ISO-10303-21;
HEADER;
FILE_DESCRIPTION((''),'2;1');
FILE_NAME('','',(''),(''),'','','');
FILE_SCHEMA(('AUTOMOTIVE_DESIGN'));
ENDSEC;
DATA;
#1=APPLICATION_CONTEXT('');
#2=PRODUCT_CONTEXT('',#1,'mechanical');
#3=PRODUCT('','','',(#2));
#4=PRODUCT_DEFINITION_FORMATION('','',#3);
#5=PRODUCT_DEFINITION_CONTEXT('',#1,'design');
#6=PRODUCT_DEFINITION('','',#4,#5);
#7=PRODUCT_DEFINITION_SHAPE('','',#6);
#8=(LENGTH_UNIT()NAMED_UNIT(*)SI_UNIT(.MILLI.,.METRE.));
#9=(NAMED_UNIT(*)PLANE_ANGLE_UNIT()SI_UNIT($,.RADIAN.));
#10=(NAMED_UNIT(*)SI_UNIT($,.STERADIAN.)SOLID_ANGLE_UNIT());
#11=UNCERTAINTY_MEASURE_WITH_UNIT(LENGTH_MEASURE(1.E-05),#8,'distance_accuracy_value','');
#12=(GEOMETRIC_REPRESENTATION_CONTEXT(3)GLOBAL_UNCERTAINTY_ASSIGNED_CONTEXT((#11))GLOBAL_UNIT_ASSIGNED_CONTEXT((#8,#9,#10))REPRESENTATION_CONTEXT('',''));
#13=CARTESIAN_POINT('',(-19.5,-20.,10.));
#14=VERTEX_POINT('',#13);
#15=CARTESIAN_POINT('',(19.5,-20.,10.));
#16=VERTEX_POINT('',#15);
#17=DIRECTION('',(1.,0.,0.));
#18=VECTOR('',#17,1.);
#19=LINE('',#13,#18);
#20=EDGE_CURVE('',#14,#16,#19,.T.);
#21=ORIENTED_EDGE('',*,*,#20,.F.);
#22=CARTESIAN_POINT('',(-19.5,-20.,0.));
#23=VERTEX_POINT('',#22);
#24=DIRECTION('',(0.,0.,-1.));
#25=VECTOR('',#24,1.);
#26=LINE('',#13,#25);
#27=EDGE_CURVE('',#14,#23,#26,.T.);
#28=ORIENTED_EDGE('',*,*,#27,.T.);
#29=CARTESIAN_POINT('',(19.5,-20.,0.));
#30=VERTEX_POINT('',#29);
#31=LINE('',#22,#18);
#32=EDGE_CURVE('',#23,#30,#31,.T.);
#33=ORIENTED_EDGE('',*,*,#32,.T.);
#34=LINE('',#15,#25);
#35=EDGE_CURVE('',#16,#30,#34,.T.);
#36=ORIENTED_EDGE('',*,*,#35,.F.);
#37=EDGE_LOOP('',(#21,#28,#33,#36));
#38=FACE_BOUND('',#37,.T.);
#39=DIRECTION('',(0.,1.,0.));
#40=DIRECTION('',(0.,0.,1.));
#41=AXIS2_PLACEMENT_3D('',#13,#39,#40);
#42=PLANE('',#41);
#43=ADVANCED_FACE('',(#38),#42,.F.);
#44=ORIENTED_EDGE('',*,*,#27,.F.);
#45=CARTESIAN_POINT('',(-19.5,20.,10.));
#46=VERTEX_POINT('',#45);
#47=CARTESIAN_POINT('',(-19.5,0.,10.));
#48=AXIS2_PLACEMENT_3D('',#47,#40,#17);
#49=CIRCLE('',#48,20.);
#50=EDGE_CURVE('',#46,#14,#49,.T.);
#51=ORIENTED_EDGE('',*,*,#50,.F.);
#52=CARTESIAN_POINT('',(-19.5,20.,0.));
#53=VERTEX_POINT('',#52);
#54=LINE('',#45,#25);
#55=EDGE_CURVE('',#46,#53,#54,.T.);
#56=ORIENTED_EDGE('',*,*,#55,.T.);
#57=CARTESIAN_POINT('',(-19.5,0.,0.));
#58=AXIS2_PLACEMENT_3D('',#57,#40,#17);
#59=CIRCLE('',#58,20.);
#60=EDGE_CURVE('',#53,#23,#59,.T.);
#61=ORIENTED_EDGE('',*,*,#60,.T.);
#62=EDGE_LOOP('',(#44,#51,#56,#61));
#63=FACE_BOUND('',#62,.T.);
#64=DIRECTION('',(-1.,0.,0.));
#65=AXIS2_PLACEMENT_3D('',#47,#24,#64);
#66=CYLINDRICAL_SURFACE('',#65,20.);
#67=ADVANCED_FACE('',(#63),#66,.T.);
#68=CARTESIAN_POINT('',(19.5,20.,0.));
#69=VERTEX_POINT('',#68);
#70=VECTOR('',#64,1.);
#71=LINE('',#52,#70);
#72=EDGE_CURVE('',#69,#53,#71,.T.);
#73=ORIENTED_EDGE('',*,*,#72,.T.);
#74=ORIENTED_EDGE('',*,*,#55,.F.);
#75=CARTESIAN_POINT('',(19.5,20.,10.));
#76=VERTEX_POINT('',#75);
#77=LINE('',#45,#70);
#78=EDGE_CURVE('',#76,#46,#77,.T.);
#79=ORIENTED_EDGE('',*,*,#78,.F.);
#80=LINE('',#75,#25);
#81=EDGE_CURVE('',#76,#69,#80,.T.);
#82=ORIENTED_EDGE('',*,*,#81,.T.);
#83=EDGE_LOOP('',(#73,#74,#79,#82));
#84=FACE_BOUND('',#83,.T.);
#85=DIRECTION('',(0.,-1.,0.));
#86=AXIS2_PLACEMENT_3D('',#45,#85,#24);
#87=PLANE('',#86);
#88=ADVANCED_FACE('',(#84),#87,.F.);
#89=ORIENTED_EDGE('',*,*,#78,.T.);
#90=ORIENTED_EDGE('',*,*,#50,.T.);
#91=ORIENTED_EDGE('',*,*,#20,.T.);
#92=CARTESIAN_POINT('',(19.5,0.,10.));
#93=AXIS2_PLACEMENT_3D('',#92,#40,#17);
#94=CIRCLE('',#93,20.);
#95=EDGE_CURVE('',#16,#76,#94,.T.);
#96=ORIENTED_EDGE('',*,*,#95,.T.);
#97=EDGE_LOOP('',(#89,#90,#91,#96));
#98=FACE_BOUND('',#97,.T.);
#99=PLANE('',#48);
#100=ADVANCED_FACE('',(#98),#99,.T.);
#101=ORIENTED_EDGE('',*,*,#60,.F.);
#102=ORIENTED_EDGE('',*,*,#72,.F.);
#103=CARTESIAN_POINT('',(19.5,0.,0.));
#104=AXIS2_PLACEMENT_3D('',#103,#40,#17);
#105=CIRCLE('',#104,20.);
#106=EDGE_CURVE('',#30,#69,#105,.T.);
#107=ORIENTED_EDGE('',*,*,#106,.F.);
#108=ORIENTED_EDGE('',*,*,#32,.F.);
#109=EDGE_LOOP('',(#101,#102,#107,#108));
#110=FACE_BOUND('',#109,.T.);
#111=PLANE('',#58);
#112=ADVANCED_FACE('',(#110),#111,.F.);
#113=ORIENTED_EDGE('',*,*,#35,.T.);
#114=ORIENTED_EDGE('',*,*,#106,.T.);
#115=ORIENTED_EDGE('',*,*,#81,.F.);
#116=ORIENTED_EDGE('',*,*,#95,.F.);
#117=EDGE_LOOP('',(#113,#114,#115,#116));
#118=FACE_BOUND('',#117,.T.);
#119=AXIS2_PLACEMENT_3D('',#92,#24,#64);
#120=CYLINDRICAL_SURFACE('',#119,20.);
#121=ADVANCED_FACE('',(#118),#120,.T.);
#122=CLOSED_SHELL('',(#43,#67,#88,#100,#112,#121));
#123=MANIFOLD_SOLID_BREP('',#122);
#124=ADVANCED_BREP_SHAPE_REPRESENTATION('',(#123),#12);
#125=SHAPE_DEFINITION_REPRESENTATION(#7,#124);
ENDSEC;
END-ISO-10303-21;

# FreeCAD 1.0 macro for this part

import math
import FreeCAD as App
import Part
import Sketcher
from FreeCAD import Vector

doc = App.newDocument("Part")
body = doc.addObject("PartDesign::Body", "Body")

sketch1 = doc.addObject("Sketcher::SketchObject", "Sketch")
body.addObject(sketch1)
sketch1.AttachmentSupport = (doc.XY_Plane, [""])
sketch1.MapMode = "FlatFace"
sketch1.addGeometry(Part.LineSegment(Vector(20, 20, 0), Vector(-20, 20, 0)), False)
sketch1.addGeometry(Part.ArcOfCircle(Part.Circle(Vector(-20, 0, 0), Vector(0, 0, 1), 20), math.radians(90), math.radians(270)), False)
sketch1.addGeometry(Part.LineSegment(Vector(-20, -20, 0), Vector(20, -20, 0)), False)
sketch1.addGeometry(Part.ArcOfCircle(Part.Circle(Vector(20, 0, 0), Vector(0, 0, 1), 20), math.radians(-90), math.radians(90)), False)
sketch1.addConstraint(Sketcher.Constraint("Tangent", 0, 2, 1, 1))
sketch1.addConstraint(Sketcher.Constraint("Tangent", 1, 2, 2, 1))
sketch1.addConstraint(Sketcher.Constraint("Tangent", 2, 2, 3, 1))
sketch1.addConstraint(Sketcher.Constraint("Tangent", 3, 2, 0, 1))
sketch1.addConstraint(Sketcher.Constraint("Horizontal", 0))
sketch1.addConstraint(Sketcher.Constraint("Horizontal", 2))
sketch1.addConstraint(Sketcher.Constraint("Symmetric", 1, 3, 3, 3, -1, 1))
sketch1.addConstraint(Sketcher.Constraint("Radius", 1, 20.0))
sketch1.addConstraint(Sketcher.Constraint("DistanceX", 0, 2, 0, 1, 39.0))
pad1 = doc.addObject("PartDesign::Pad", "Pad")
body.addObject(pad1)
pad1.Profile = sketch1
pad1.Length = 10

doc.recompute()
